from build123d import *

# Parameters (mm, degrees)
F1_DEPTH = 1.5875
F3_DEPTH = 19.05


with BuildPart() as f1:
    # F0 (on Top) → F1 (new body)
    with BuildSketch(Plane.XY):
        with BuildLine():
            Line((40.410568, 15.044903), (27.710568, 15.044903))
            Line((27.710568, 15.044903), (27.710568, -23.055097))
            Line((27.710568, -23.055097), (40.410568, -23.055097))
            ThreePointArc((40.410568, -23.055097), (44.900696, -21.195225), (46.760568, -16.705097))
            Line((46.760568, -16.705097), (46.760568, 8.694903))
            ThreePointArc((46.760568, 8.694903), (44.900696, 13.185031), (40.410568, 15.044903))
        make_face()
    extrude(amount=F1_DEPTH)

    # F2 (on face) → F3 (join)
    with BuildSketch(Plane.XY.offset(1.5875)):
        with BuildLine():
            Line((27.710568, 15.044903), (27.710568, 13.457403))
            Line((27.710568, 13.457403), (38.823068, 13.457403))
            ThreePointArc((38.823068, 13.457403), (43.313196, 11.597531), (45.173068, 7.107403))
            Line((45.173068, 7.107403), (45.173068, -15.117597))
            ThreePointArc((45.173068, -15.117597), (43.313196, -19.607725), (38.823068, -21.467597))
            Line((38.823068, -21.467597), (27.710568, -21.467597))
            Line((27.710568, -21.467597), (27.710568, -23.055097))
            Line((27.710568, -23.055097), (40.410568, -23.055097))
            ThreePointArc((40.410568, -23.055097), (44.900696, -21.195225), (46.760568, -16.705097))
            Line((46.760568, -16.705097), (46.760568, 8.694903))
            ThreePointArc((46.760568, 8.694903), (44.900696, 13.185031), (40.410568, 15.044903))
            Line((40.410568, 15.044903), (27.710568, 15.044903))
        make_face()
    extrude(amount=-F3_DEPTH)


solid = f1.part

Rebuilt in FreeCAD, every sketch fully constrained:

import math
import FreeCAD as App
import Part
import Sketcher
Q = App.Units.Quantity

doc = App.newDocument("Part")
body = doc.addObject("PartDesign::Body", "Body")

# Sketch on XY plane
sketch1 = body.newObject("Sketcher::SketchObject", "Sketch")
sketch1.AttachmentSupport = (doc.getObject("XY_Plane"), [""])
sketch1.MapMode = "FlatFace"
sketch1.addGeometry(Part.LineSegment(App.Vector(40, 15, 0), App.Vector(28, 15, 0)), False)
sketch1.addGeometry(Part.LineSegment(App.Vector(28, 15, 0), App.Vector(28, -23, 0)), False)
sketch1.addGeometry(Part.LineSegment(App.Vector(28, -23, 0), App.Vector(40, -23, 0)), False)
sketch1.addGeometry(Part.ArcOfCircle(Part.Circle(App.Vector(40, -17, 0), App.Vector(0, 0, 1), 6), math.radians(-90), math.radians(0)), False)
sketch1.addGeometry(Part.LineSegment(App.Vector(47, -17, 0), App.Vector(47, 9, 0)), False)
sketch1.addGeometry(Part.ArcOfCircle(Part.Circle(App.Vector(40, 9, 0), App.Vector(0, 0, 1), 6), math.radians(0), math.radians(90)), False)
sketch1.addConstraint(Sketcher.Constraint("Coincident", 0, 2, 1, 1))
sketch1.addConstraint(Sketcher.Constraint("Coincident", 1, 2, 2, 1))
sketch1.addConstraint(Sketcher.Constraint("Tangent", 2, 2, 3, 1))
sketch1.addConstraint(Sketcher.Constraint("Tangent", 3, 2, 4, 1))
sketch1.addConstraint(Sketcher.Constraint("Tangent", 4, 2, 5, 1))
sketch1.addConstraint(Sketcher.Constraint("Tangent", 5, 2, 0, 1))
sketch1.addConstraint(Sketcher.Constraint("Horizontal", 0))
sketch1.addConstraint(Sketcher.Constraint("Vertical", 1))
sketch1.addConstraint(Sketcher.Constraint("Horizontal", 2))
sketch1.addConstraint(Sketcher.Constraint("Vertical", 4))
sketch1.addConstraint(Sketcher.Constraint("Equal", 3, 5))
sketch1.addConstraint(Sketcher.Constraint("DistanceY", 4, 1, 4, 2, Q("1 in")))
sketch1.addConstraint(Sketcher.Constraint("Radius", 3, Q("0.25 in")))
sketch1.addConstraint(Sketcher.Constraint("DistanceX", 0, 2, 0, 1, Q("0.5 in")))
sketch1.addConstraint(Sketcher.Constraint("DistanceX", -1, 1, 3, 3, Q("40.410568 mm")))
sketch1.addConstraint(Sketcher.Constraint("DistanceY", 3, 3, -1, 1, Q("16.705097 mm")))
pad1 = body.newObject("PartDesign::Pad", "Pad")
pad1.Profile = sketch1
pad1.Length = Q("0.0625 in")

# Sketch on XY plane
sketch2 = body.newObject("Sketcher::SketchObject", "Sketch001")
sketch2.AttachmentSupport = (doc.getObject("XY_Plane"), [""])
sketch2.MapMode = "FlatFace"
sketch2.AttachmentOffset = App.Placement(App.Vector(0, 0, 0.0625 * 25.4), App.Rotation())
sketch2.addGeometry(Part.LineSegment(App.Vector(27.7, 15, 0), App.Vector(27.7, 13.5, 0)), False)
sketch2.addGeometry(Part.LineSegment(App.Vector(27.7, 13.5, 0), App.Vector(38.8, 13.5, 0)), False)
sketch2.addGeometry(Part.ArcOfCircle(Part.Circle(App.Vector(38.8, 7.1, 0), App.Vector(0, 0, 1), 6.4), math.radians(0), math.radians(90)), False)
sketch2.addGeometry(Part.LineSegment(App.Vector(45.2, 7.1, 0), App.Vector(45.2, -15.1, 0)), False)
sketch2.addGeometry(Part.ArcOfCircle(Part.Circle(App.Vector(38.8, -15.1, 0), App.Vector(0, 0, 1), 6.4), math.radians(-90), math.radians(0)), False)
sketch2.addGeometry(Part.LineSegment(App.Vector(38.8, -21.5, 0), App.Vector(27.7, -21.5, 0)), False)
sketch2.addGeometry(Part.LineSegment(App.Vector(27.7, -21.5, 0), App.Vector(27.7, -23.1, 0)), False)
sketch2.addGeometry(Part.LineSegment(App.Vector(27.7, -23.1, 0), App.Vector(40.4, -23.1, 0)), False)
sketch2.addGeometry(Part.ArcOfCircle(Part.Circle(App.Vector(40.4, -16.7, 0), App.Vector(0, 0, 1), 6.4), math.radians(-90), math.radians(0)), False)
sketch2.addGeometry(Part.LineSegment(App.Vector(46.8, -16.7, 0), App.Vector(46.8, 8.7, 0)), False)
sketch2.addGeometry(Part.ArcOfCircle(Part.Circle(App.Vector(40.4, 8.7, 0), App.Vector(0, 0, 1), 6.4), math.radians(0), math.radians(90)), False)
sketch2.addGeometry(Part.LineSegment(App.Vector(40.4, 15, 0), App.Vector(27.7, 15, 0)), False)
sketch2.addConstraint(Sketcher.Constraint("Coincident", 0, 2, 1, 1))
sketch2.addConstraint(Sketcher.Constraint("Tangent", 1, 2, 2, 2))
sketch2.addConstraint(Sketcher.Constraint("Tangent", 2, 1, 3, 1))
sketch2.addConstraint(Sketcher.Constraint("Tangent", 3, 2, 4, 2))
sketch2.addConstraint(Sketcher.Constraint("Tangent", 4, 1, 5, 1))
sketch2.addConstraint(Sketcher.Constraint("Coincident", 5, 2, 6, 1))
sketch2.addConstraint(Sketcher.Constraint("Coincident", 6, 2, 7, 1))
sketch2.addConstraint(Sketcher.Constraint("Tangent", 7, 2, 8, 1))
sketch2.addConstraint(Sketcher.Constraint("Tangent", 8, 2, 9, 1))
sketch2.addConstraint(Sketcher.Constraint("Tangent", 9, 2, 10, 1))
sketch2.addConstraint(Sketcher.Constraint("Tangent", 10, 2, 11, 1))
sketch2.addConstraint(Sketcher.Constraint("Coincident", 11, 2, 0, 1))
sketch2.addConstraint(Sketcher.Constraint("Vertical", 0))
sketch2.addConstraint(Sketcher.Constraint("Horizontal", 1))
sketch2.addConstraint(Sketcher.Constraint("Vertical", 3))
sketch2.addConstraint(Sketcher.Constraint("Horizontal", 5))
sketch2.addConstraint(Sketcher.Constraint("Vertical", 6))
sketch2.addConstraint(Sketcher.Constraint("Horizontal", 7))
sketch2.addConstraint(Sketcher.Constraint("Vertical", 9))
sketch2.addConstraint(Sketcher.Constraint("Horizontal", 11))
sketch2.addConstraint(Sketcher.Constraint("Equal", 2, 4))
sketch2.addConstraint(Sketcher.Constraint("Equal", 4, 8))
sketch2.addConstraint(Sketcher.Constraint("Equal", 8, 10))
sketch2.addConstraint(Sketcher.Constraint("Vertical", 0, 2, 5, 2))
sketch2.addConstraint(Sketcher.Constraint("Equal", 0, 6))
sketch2.addConstraint(Sketcher.Constraint("DistanceY", 9, 1, 9, 2, Q("1 in")))
sketch2.addConstraint(Sketcher.Constraint("Radius", 2, Q("0.25 in")))
sketch2.addConstraint(Sketcher.Constraint("DistanceX", 7, 1, 7, 2, Q("0.5 in")))
sketch2.addConstraint(Sketcher.Constraint("DistanceX", 1, 1, 1, 2, Q("0.4375 in")))
sketch2.addConstraint(Sketcher.Constraint("DistanceY", 0, 2, 0, 1, Q("0.0625 in")))
sketch2.addConstraint(Sketcher.Constraint("DistanceX", -1, 1, 2, 3, Q("38.823068 mm")))
sketch2.addConstraint(Sketcher.Constraint("DistanceY", -1, 1, 2, 3, Q("7.107403 mm")))
pad2 = body.newObject("PartDesign::Pad", "Pad001")
pad2.Profile = sketch2
pad2.Length = Q("0.75 in")
pad2.Reversed = True

doc.recompute()
